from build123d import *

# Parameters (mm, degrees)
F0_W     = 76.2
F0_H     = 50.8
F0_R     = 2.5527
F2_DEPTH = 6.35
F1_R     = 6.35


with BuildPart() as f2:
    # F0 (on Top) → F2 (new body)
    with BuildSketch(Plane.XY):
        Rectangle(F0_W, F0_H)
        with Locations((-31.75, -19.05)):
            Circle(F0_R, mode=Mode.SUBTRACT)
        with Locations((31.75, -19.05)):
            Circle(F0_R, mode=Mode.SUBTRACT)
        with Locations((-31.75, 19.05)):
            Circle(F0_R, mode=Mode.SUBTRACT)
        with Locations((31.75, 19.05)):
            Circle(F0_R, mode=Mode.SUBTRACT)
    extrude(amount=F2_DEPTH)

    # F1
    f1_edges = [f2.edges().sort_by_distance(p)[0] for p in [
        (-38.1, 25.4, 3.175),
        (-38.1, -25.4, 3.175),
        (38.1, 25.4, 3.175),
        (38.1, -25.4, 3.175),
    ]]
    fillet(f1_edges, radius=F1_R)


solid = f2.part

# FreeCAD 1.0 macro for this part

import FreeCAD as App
import Part
import Sketcher
Q = App.Units.Quantity


def edges_at(feature, points):
    """Names of the edges that pass closest to the given points."""
    edges = feature.Shape.Edges
    near = lambda p: min(range(len(edges)), key=lambda i: edges[i].distToShape(Part.Vertex(*p))[0])
    return sorted({f"Edge{near(p) + 1}" for p in points})

doc = App.newDocument("Part")
params = doc.addObject("Spreadsheet::Sheet", "Params")
for row, (alias, value) in enumerate([
    ("sketch1_width", "3 in"),
    ("sketch1_height", "2 in"),
    ("sketch1_diameter", "0.201 in"),
    ("pad1_length", "0.25 in"),
    ("fillet_radius", "0.25 in"),
], start=1):
    params.set(f"A{row}", alias)
    params.set(f"B{row}", "=" + value)
    params.setAlias(f"B{row}", alias)

body = doc.addObject("PartDesign::Body", "Body")

sketch1 = doc.addObject("Sketcher::SketchObject", "Sketch")
body.addObject(sketch1)
sketch1.AttachmentSupport = (doc.XY_Plane, [""])
sketch1.MapMode = "FlatFace"
sketch1.addGeometry(Part.LineSegment(App.Vector(-38.1, 25.4, 0), App.Vector(-38.1, -25.4, 0)), False)
sketch1.addGeometry(Part.LineSegment(App.Vector(-38.1, -25.4, 0), App.Vector(38.1, -25.4, 0)), False)
sketch1.addGeometry(Part.LineSegment(App.Vector(38.1, -25.4, 0), App.Vector(38.1, 25.4, 0)), False)
sketch1.addGeometry(Part.LineSegment(App.Vector(38.1, 25.4, 0), App.Vector(-38.1, 25.4, 0)), False)
sketch1.addGeometry(Part.Circle(App.Vector(-31.75, -19.05, 0), App.Vector(0, 0, 1), 2.5527), False)
sketch1.addGeometry(Part.Circle(App.Vector(31.75, -19.05, 0), App.Vector(0, 0, 1), 2.5527), False)
sketch1.addGeometry(Part.Circle(App.Vector(-31.75, 19.05, 0), App.Vector(0, 0, 1), 2.5527), False)
sketch1.addGeometry(Part.Circle(App.Vector(31.75, 19.05, 0), App.Vector(0, 0, 1), 2.5527), False)
sketch1.addConstraint(Sketcher.Constraint("Coincident", 0, 2, 1, 1))
sketch1.addConstraint(Sketcher.Constraint("Coincident", 1, 2, 2, 1))
sketch1.addConstraint(Sketcher.Constraint("Coincident", 2, 2, 3, 1))
sketch1.addConstraint(Sketcher.Constraint("Coincident", 3, 2, 0, 1))
sketch1.addConstraint(Sketcher.Constraint("Vertical", 0))
sketch1.addConstraint(Sketcher.Constraint("Horizontal", 1))
sketch1.addConstraint(Sketcher.Constraint("Vertical", 2))
sketch1.addConstraint(Sketcher.Constraint("Horizontal", 3))
sketch1.addConstraint(Sketcher.Constraint("Equal", 4, 5))
sketch1.addConstraint(Sketcher.Constraint("Equal", 5, 6))
sketch1.addConstraint(Sketcher.Constraint("Equal", 6, 7))
sketch1.addConstraint(Sketcher.Constraint("Symmetric", 5, 3, 6, 3, -1, 1))
sketch1.addConstraint(Sketcher.Constraint("Symmetric", 4, 3, 7, 3, -1, 1))
sketch1.addConstraint(Sketcher.Constraint("Symmetric", 0, 2, 2, 2, -1, 1))
sketch1.addConstraint(Sketcher.Constraint("Symmetric", 4, 3, 5, 3, -2))
sketch1.addConstraint(Sketcher.Constraint("DistanceX", 1, 1, 1, 2, Q("3 in")))
sketch1.addConstraint(Sketcher.Constraint("DistanceY", 0, 2, 0, 1, Q("2 in")))
sketch1.addConstraint(Sketcher.Constraint("Diameter", 4, Q("0.201 in")))
sketch1.addConstraint(Sketcher.Constraint("DistanceX", 4, 3, 5, 3, Q("2.5 in")))
sketch1.addConstraint(Sketcher.Constraint("DistanceY", 4, 3, 6, 3, Q("1.5 in")))
sketch1.setExpression("Constraints[15]", "Params.sketch1_width")
sketch1.setExpression("Constraints[16]", "Params.sketch1_height")
sketch1.setExpression("Constraints[17]", "Params.sketch1_diameter")
pad1 = doc.addObject("PartDesign::Pad", "Pad")
body.addObject(pad1)
pad1.Profile = sketch1
pad1.setExpression("Length", "Params.pad1_length")
doc.recompute()

fillet = doc.addObject("PartDesign::Fillet", "Fillet")
body.addObject(fillet)
fillet.Base = (pad1, edges_at(pad1, [
    (-38.1, 25.4, 3.175),
    (-38.1, -25.4, 3.175),
    (38.1, 25.4, 3.175),
    (38.1, -25.4, 3.175),
]))
fillet.setExpression("Radius", "Params.fillet_radius")

doc.recompute()
